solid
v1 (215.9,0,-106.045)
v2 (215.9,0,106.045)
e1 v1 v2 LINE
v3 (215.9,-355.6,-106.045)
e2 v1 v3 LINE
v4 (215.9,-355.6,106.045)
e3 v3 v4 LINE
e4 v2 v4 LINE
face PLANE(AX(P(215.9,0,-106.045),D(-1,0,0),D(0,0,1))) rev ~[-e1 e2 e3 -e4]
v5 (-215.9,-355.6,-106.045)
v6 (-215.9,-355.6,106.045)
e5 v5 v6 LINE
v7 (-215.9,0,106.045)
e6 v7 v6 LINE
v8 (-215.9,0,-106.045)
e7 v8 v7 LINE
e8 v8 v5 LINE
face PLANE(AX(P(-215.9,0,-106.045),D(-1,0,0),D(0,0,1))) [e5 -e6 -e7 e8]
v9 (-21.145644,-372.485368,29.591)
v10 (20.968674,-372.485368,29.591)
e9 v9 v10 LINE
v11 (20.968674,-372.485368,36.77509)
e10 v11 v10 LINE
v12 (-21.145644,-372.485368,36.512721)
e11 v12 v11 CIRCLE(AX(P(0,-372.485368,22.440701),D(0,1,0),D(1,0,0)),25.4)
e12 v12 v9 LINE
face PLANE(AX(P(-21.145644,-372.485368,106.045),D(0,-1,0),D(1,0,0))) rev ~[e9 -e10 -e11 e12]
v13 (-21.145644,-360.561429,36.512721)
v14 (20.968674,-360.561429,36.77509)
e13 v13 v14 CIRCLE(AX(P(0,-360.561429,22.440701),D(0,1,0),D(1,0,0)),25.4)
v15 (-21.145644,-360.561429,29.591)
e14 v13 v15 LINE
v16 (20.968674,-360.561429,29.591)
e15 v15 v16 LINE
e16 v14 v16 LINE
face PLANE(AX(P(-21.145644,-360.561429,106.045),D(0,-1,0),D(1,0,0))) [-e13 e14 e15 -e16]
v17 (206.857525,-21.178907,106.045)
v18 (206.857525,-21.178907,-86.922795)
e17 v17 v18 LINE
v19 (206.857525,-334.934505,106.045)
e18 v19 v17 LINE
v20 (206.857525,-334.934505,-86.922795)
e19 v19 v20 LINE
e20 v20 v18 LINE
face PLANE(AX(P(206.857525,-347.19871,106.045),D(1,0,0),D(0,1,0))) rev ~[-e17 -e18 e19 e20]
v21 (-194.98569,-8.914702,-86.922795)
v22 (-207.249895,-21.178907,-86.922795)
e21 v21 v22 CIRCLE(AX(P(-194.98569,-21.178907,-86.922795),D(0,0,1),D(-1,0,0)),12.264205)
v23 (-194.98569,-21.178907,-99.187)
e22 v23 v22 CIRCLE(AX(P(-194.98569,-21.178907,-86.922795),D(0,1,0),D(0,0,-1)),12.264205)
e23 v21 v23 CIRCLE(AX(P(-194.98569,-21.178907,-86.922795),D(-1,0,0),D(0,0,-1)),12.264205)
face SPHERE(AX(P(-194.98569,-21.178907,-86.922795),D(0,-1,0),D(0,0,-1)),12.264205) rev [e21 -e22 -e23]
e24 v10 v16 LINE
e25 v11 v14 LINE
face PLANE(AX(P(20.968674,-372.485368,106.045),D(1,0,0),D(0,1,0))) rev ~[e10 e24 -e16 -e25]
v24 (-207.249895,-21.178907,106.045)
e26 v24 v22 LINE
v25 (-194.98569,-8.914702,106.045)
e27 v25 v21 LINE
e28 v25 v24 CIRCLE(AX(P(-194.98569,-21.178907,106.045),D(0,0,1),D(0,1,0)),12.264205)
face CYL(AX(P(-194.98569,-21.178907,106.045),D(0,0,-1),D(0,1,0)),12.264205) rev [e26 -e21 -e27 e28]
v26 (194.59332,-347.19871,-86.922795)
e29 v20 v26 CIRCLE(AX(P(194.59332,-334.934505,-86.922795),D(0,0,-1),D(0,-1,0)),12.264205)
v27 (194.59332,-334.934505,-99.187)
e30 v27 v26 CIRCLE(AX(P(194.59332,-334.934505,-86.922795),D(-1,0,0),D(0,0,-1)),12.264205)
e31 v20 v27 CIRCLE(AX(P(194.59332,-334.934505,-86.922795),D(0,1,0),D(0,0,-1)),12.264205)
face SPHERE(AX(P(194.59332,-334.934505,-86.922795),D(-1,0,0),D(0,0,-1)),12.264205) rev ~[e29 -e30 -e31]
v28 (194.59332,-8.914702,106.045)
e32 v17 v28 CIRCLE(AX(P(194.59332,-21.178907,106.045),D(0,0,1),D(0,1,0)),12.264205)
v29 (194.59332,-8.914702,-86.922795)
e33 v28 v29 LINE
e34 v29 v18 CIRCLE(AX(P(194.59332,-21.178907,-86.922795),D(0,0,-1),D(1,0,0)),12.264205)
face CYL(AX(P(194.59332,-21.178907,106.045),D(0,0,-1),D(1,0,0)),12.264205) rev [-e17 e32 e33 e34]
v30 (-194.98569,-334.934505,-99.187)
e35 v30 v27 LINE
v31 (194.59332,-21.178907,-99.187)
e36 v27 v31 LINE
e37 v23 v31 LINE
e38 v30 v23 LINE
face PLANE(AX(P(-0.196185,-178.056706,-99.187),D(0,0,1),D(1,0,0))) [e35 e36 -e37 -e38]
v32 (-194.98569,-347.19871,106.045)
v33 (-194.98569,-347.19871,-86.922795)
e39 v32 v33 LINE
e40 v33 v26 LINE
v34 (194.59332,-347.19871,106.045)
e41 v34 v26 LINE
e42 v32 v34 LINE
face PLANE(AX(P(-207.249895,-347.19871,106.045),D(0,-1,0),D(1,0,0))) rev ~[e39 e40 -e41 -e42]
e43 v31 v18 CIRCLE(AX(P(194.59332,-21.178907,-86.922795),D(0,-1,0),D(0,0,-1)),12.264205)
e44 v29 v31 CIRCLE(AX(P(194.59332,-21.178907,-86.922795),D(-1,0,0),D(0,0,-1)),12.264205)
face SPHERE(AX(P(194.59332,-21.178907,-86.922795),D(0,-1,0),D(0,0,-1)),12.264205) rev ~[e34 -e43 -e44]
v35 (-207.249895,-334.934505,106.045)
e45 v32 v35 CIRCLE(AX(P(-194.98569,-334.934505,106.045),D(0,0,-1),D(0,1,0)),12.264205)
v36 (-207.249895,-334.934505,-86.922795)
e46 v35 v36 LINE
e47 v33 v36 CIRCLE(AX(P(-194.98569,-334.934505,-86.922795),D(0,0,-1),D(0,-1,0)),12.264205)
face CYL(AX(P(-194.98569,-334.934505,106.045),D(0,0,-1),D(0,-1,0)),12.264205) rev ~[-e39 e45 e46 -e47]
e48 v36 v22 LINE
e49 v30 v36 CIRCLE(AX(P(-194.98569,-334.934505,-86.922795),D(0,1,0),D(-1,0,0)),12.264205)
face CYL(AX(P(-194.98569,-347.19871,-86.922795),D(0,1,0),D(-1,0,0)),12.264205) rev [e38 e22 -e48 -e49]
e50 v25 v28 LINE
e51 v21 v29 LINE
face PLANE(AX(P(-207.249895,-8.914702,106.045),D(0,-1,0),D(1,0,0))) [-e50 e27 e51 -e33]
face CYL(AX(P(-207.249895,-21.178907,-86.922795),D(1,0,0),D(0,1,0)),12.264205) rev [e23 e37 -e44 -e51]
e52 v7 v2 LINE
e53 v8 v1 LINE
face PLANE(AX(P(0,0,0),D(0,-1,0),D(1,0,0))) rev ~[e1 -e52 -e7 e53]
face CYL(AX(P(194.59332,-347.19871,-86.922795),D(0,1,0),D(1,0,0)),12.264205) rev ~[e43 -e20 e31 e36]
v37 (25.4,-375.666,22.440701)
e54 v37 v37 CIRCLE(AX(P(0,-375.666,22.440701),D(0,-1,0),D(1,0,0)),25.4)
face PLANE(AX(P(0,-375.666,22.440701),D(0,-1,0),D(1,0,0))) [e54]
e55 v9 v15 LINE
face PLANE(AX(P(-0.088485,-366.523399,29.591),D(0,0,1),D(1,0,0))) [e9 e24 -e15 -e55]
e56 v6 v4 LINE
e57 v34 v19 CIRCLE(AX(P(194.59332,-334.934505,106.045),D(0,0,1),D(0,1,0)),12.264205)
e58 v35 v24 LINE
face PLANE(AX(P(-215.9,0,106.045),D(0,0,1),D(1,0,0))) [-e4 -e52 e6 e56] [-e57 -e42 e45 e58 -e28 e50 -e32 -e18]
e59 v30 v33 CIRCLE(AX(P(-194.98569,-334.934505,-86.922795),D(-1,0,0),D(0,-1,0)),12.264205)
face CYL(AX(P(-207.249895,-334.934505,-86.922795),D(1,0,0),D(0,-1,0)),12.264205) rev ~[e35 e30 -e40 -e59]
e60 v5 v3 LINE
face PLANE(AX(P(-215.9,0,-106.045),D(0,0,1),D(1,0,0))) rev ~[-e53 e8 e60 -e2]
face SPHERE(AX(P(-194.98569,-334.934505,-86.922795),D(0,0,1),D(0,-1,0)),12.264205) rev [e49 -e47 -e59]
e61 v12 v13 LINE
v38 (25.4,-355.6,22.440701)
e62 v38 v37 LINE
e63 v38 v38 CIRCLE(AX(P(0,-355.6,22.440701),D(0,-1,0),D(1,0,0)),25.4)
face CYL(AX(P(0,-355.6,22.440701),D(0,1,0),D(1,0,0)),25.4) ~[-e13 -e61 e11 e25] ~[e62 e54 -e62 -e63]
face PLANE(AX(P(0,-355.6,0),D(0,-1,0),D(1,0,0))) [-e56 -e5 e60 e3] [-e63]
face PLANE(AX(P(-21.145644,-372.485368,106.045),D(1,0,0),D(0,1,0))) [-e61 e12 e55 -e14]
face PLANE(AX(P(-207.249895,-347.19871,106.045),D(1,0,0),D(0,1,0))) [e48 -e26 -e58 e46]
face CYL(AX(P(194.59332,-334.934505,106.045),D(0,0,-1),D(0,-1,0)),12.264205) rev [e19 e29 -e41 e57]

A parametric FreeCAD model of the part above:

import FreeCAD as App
import Part
import Sketcher
Q = App.Units.Quantity


def edges_at(feature, points):
    """Names of the edges that pass closest to the given points."""
    edges = feature.Shape.Edges
    near = lambda p: min(range(len(edges)), key=lambda i: edges[i].distToShape(Part.Vertex(*p))[0])
    return sorted({f"Edge{near(p) + 1}" for p in points})


def add_polygon(sketch, points):
    """Adds a closed chain of lines whose ends are joined by coincident constraints."""
    first, n = sketch.GeometryCount, len(points)
    for a, b in zip(points, points[1:] + points[:1]):
        sketch.addGeometry(Part.LineSegment(App.Vector(*a, 0), App.Vector(*b, 0)), False)
    for i in range(n):
        sketch.addConstraint(Sketcher.Constraint("Coincident", first + i, 2, first + (i + 1) % n, 1))

doc = App.newDocument("Part")
body = doc.addObject("PartDesign::Body", "Body")

sketch1 = body.newObject("Sketcher::SketchObject", "Sketch")
sketch1.AttachmentSupport = (doc.getObject("XZ_Plane"), [""])
sketch1.MapMode = "FlatFace"
add_polygon(sketch1, [(-216, 106), (-216, -106), (216, -106), (216, 106)])
sketch1.addConstraint(Sketcher.Constraint("Vertical", 0))
sketch1.addConstraint(Sketcher.Constraint("Horizontal", 1))
sketch1.addConstraint(Sketcher.Constraint("Vertical", 2))
sketch1.addConstraint(Sketcher.Constraint("Horizontal", 3))
sketch1.addConstraint(Sketcher.Constraint("Symmetric", 0, 2, 2, 2, -1, 1))
sketch1.addConstraint(Sketcher.Constraint("DistanceX", 1, 1, 1, 2, Q("17 in")))
sketch1.addConstraint(Sketcher.Constraint("DistanceY", 0, 2, 0, 1, Q("8.35 in")))
pad1 = body.newObject("PartDesign::Pad", "Pad")
pad1.Profile = sketch1
pad1.Length = Q("14 in")

sketch2 = body.newObject("Sketcher::SketchObject", "Sketch001")
sketch2.AttachmentSupport = (doc.getObject("XY_Plane"), [""])
sketch2.MapMode = "FlatFace"
sketch2.AttachmentOffset = App.Placement(App.Vector(0, 0, 4.175 * 25.4), App.Rotation())
add_polygon(sketch2, [(-207, -9), (-207, -347), (207, -347), (207, -9)])
sketch2.addConstraint(Sketcher.Constraint("Vertical", 0))
sketch2.addConstraint(Sketcher.Constraint("Horizontal", 1))
sketch2.addConstraint(Sketcher.Constraint("Vertical", 2))
sketch2.addConstraint(Sketcher.Constraint("Horizontal", 3))
sketch2.addConstraint(Sketcher.Constraint("DistanceX", 1, 1, 1, 2, Q("414.10742 mm")))
sketch2.addConstraint(Sketcher.Constraint("DistanceY", 0, 2, 0, 1, Q("338.284008 mm")))
sketch2.addConstraint(Sketcher.Constraint("DistanceY", 0, 2, -1, 1, Q("347.19871 mm")))
sketch2.addConstraint(Sketcher.Constraint("DistanceX", 0, 2, -1, 1, Q("207.249895 mm")))
pocket1 = body.newObject("PartDesign::Pocket", "Pocket")
pocket1.Profile = sketch2
pocket1.Length = Q("8.08 in")

sketch3 = body.newObject("Sketcher::SketchObject", "Sketch002")
sketch3.AttachmentSupport = (doc.getObject("XZ_Plane"), [""])
sketch3.MapMode = "FlatFace"
sketch3.AttachmentOffset = App.Placement(App.Vector(0, 0, 14 * 25.4), App.Rotation())
sketch3.addGeometry(Part.Circle(App.Vector(0, 22, 0), App.Vector(0, 0, 1), 25), False)
sketch3.addConstraint(Sketcher.Constraint("PointOnObject", 0, 3, -2))
sketch3.addConstraint(Sketcher.Constraint("Diameter", 0, Q("2 in")))
sketch3.addConstraint(Sketcher.Constraint("DistanceY", -1, 1, 0, 3, Q("22.440701 mm")))
pad2 = body.newObject("PartDesign::Pad", "Pad001")
pad2.Profile = sketch3
pad2.Length = Q("0.79 in")
doc.recompute()

fillet = body.newObject("PartDesign::Fillet", "Fillet")
fillet.Base = (pad2, edges_at(pad2, [
    (-207.25, -347.199, 3.429),
    (-0.196, -347.199, -99.187),
    (-207.25, -178.057, -99.187),
    (206.858, -178.057, -99.187),
    (206.858, -347.199, 3.429),
    (-0.196, -8.915, -99.187),
    (-207.25, -8.915, 3.429),
    (206.858, -8.915, 3.429),
]))
fillet.Radius = 12.264205

sketch4 = body.newObject("Sketcher::SketchObject", "Sketch003")
sketch4.AttachmentSupport = (doc.getObject("XY_Plane"), [""])
sketch4.MapMode = "FlatFace"
sketch4.AttachmentOffset = App.Placement(App.Vector(0, 0, 4.175 * 25.4), App.Rotation())
add_polygon(sketch4, [(-21, -361), (-21, -372), (21, -372), (21, -361)])
sketch4.addConstraint(Sketcher.Constraint("Vertical", 0))
sketch4.addConstraint(Sketcher.Constraint("Horizontal", 1))
sketch4.addConstraint(Sketcher.Constraint("Vertical", 2))
sketch4.addConstraint(Sketcher.Constraint("Horizontal", 3))
sketch4.addConstraint(Sketcher.Constraint("DistanceY", 0, 2, 0, 1, Q("11.923939 mm")))
sketch4.addConstraint(Sketcher.Constraint("DistanceX", 1, 1, 1, 2, Q("42.114318 mm")))
sketch4.addConstraint(Sketcher.Constraint("DistanceY", 0, 2, -1, 1, Q("372.485368 mm")))
sketch4.addConstraint(Sketcher.Constraint("DistanceX", 0, 2, -1, 1, Q("21.145644 mm")))
pocket2 = body.newObject("PartDesign::Pocket", "Pocket001")
pocket2.Profile = sketch4
pocket2.Length = Q("3.01 in")

doc.recompute()
